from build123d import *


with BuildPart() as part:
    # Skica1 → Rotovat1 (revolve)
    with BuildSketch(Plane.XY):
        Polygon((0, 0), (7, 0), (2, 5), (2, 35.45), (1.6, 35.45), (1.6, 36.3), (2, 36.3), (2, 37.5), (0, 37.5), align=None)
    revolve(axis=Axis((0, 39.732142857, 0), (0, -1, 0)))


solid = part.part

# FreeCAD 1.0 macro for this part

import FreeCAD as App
import Part
import Sketcher

V = App.Vector
Q = App.Units.Quantity

doc = App.newDocument("Part")
body = doc.addObject("PartDesign::Body", "Body")

# Sketch on XY plane
sketch1 = doc.addObject("Sketcher::SketchObject", "Sketch")
body.addObject(sketch1)
sketch1.AttachmentSupport = (doc.XY_Plane, [""])
sketch1.MapMode = "FlatFace"
sketch1.addGeometry([
    Part.LineSegment(V(0, 0, 0), V(7, 0, 0)),  # 0
    Part.LineSegment(V(7, 0, 0), V(2, 5, 0)),  # 1
    Part.LineSegment(V(2, 5, 0), V(2, 35.45, 0)),  # 2
    Part.LineSegment(V(2, 35.45, 0), V(1.6, 35.45, 0)),  # 3
    Part.LineSegment(V(1.6, 35.45, 0), V(1.6, 36.3, 0)),  # 4
    Part.LineSegment(V(1.6, 36.3, 0), V(2, 36.3, 0)),  # 5
    Part.LineSegment(V(2, 36.3, 0), V(2, 37.5, 0)),  # 6
    Part.LineSegment(V(2, 37.5, 0), V(0, 37.5, 0)),  # 7
    Part.LineSegment(V(0, 37.5, 0), V(0, 0, 0)),  # 8
], False)
sketch1.addConstraint([
    Sketcher.Constraint("Coincident", 0, 2, 1, 1),
    Sketcher.Constraint("Coincident", 1, 2, 2, 1),
    Sketcher.Constraint("Coincident", 2, 2, 3, 1),
    Sketcher.Constraint("Coincident", 3, 2, 4, 1),
    Sketcher.Constraint("Coincident", 4, 2, 5, 1),
    Sketcher.Constraint("Coincident", 5, 2, 6, 1),
    Sketcher.Constraint("Coincident", 6, 2, 7, 1),
    Sketcher.Constraint("Coincident", 7, 2, 8, 1),
    Sketcher.Constraint("Coincident", 8, 2, 0, 1),
    Sketcher.Constraint("Horizontal", 0),
    Sketcher.Constraint("Vertical", 2),
    Sketcher.Constraint("Horizontal", 3),
    Sketcher.Constraint("Vertical", 4),
    Sketcher.Constraint("Horizontal", 5),
    Sketcher.Constraint("Vertical", 6),
    Sketcher.Constraint("Horizontal", 7),
    Sketcher.Constraint("Vertical", 8),
    Sketcher.Constraint("Coincident", 8, 2, -1, 1),
    Sketcher.Constraint("Vertical", 2, 2, 5, 2),
    Sketcher.Constraint("DistanceX", 0, 1, 0, 2, Q("7 mm")),
    Sketcher.Constraint("DistanceX", 7, 2, 7, 1, Q("2 mm")),
    Sketcher.Constraint("Angle", 1, Q("135 deg")),
    Sketcher.Constraint("DistanceX", 3, 2, 3, 1, Q("0.4 mm")),
    Sketcher.Constraint("DistanceY", 6, 1, 6, 2, Q("1.2 mm")),
    Sketcher.Constraint("DistanceY", 8, 2, 8, 1, Q("37.5 mm")),
    Sketcher.Constraint("DistanceY", 2, 1, 2, 2, Q("30.45 mm")),
])
revolution = doc.addObject("PartDesign::Revolution", "Revolution")
body.addObject(revolution)
revolution.Profile = sketch1
revolution.ReferenceAxis = (sketch1, ["V_Axis"])
revolution.Angle = 360

doc.recompute()
